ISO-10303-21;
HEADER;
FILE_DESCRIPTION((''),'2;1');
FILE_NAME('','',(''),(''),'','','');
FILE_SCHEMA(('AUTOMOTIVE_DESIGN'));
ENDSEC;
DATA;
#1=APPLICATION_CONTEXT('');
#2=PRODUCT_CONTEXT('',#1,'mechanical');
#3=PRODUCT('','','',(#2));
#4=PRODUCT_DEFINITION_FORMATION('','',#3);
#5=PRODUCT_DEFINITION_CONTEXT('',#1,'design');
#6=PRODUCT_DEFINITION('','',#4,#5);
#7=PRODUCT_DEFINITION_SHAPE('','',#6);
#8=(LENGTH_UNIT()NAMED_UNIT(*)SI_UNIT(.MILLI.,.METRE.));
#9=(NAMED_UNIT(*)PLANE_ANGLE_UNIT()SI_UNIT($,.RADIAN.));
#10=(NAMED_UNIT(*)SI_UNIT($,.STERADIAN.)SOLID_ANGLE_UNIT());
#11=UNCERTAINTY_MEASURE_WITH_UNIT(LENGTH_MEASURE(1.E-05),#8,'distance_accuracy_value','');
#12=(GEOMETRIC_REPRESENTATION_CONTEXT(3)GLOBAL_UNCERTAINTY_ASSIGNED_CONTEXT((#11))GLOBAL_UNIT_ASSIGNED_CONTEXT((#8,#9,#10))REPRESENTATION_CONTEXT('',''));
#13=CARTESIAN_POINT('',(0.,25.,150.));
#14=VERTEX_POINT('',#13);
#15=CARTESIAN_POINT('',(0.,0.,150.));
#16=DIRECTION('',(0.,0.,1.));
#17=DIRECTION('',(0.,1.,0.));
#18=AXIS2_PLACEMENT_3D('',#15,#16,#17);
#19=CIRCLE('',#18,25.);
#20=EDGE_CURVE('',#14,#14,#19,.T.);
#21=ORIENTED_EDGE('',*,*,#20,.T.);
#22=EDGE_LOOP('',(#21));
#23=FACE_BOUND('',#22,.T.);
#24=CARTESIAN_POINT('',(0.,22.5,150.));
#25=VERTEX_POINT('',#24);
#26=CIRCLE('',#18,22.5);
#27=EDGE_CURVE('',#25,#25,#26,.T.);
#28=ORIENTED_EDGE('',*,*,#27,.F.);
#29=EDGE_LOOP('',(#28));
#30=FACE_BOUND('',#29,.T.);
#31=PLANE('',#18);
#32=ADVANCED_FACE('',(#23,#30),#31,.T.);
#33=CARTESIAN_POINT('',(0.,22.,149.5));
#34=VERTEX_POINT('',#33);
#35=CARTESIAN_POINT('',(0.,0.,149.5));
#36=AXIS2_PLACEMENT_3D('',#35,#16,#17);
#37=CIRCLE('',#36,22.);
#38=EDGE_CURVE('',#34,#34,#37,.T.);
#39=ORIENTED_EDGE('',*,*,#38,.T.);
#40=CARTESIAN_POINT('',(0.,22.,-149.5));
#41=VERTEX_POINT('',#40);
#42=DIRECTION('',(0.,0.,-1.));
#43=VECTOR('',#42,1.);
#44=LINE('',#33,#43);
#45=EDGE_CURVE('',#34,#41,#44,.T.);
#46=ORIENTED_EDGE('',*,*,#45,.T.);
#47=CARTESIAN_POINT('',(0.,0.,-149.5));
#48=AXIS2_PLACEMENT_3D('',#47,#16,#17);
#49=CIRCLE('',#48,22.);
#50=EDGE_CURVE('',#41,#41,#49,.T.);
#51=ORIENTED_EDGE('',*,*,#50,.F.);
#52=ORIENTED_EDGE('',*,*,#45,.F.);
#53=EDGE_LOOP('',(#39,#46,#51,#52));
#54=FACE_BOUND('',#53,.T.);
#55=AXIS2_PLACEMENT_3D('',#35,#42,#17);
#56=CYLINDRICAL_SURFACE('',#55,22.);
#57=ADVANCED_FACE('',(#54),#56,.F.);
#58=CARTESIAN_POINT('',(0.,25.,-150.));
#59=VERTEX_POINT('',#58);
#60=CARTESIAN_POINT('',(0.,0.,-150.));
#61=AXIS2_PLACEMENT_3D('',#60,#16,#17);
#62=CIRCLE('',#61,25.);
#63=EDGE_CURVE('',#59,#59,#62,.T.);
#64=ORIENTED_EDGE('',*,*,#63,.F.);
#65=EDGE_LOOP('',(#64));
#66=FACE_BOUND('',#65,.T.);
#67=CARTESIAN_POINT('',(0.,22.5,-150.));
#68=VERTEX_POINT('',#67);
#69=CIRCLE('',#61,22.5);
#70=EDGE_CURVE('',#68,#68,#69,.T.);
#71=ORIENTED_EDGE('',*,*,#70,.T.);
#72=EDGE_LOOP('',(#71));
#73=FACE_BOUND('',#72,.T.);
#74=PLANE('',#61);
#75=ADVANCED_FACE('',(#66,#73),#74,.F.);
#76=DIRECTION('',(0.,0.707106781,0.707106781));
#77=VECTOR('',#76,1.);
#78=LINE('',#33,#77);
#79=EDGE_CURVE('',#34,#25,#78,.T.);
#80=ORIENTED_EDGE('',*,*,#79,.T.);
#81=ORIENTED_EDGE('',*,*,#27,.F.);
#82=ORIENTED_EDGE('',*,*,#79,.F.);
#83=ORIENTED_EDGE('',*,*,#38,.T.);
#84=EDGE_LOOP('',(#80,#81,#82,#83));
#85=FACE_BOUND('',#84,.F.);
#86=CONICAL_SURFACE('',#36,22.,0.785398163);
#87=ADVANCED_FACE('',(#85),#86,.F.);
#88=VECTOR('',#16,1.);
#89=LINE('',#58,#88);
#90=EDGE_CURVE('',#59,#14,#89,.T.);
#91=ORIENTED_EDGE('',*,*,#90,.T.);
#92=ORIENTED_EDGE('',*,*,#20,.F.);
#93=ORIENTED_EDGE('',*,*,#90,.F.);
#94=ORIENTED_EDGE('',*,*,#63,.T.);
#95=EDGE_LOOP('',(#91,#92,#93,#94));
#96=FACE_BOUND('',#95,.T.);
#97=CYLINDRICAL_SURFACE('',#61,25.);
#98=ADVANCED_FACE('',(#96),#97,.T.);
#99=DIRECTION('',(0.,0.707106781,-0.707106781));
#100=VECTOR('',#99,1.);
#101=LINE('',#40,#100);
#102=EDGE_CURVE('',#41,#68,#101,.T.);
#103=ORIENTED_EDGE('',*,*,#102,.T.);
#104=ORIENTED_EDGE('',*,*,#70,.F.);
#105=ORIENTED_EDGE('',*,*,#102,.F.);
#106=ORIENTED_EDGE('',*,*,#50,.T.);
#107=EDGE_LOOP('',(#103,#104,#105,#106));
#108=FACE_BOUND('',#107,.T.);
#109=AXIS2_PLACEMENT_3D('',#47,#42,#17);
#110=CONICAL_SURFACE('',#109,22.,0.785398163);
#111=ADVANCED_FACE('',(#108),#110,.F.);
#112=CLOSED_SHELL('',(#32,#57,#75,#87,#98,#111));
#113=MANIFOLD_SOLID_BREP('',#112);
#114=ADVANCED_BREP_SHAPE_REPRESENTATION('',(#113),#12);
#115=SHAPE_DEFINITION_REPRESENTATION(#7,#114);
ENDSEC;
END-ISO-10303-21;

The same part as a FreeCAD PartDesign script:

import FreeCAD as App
import Part
import Sketcher

V = App.Vector
Q = App.Units.Quantity


def add_polygon(sketch, points):
    """Adds a closed chain of lines whose ends are joined by coincident constraints."""
    first, n = sketch.GeometryCount, len(points)
    for a, b in zip(points, points[1:] + points[:1]):
        sketch.addGeometry(Part.LineSegment(App.Vector(*a, 0), App.Vector(*b, 0)), False)
    for i in range(n):
        sketch.addConstraint(Sketcher.Constraint("Coincident", first + i, 2, first + (i + 1) % n, 1))

doc = App.newDocument("Part")
body = doc.addObject("PartDesign::Body", "Body")

# Sketch on YZ plane
sketch1 = doc.addObject("Sketcher::SketchObject", "Sketch")
body.addObject(sketch1)
sketch1.AttachmentSupport = (doc.YZ_Plane, [""])
sketch1.MapMode = "FlatFace"
add_polygon(sketch1, [(25, -150), (25, 150), (22.5, 150), (22, 149.5), (22, -149.5), (22.5, -150)])  # lines 0-5
sketch1.addConstraint([
    Sketcher.Constraint("Vertical", 0),
    Sketcher.Constraint("Horizontal", 1),
    Sketcher.Constraint("Vertical", 3),
    Sketcher.Constraint("Horizontal", 5),
    Sketcher.Constraint("Symmetric", 1, 2, 4, 2, -1),
    Sketcher.Constraint("Perpendicular", 2, 4),
    Sketcher.Constraint("Equal", 2, 4),
    Sketcher.Constraint("DistanceY", 0, 1, 0, 2, Q("300 mm")),
    Sketcher.Constraint("DistanceX", 2, 2, 1, 2, Q("0.5 mm")),
    Sketcher.Constraint("DistanceX", 1, 2, 1, 1, Q("2.5 mm")),
    Sketcher.Constraint("DistanceX", -1, 1, 0, 2, Q("25 mm")),
])
revolution = doc.addObject("PartDesign::Revolution", "Revolution")
body.addObject(revolution)
revolution.Profile = sketch1
revolution.ReferenceAxis = (sketch1, ["V_Axis"])
revolution.Angle = 360

doc.recompute()
